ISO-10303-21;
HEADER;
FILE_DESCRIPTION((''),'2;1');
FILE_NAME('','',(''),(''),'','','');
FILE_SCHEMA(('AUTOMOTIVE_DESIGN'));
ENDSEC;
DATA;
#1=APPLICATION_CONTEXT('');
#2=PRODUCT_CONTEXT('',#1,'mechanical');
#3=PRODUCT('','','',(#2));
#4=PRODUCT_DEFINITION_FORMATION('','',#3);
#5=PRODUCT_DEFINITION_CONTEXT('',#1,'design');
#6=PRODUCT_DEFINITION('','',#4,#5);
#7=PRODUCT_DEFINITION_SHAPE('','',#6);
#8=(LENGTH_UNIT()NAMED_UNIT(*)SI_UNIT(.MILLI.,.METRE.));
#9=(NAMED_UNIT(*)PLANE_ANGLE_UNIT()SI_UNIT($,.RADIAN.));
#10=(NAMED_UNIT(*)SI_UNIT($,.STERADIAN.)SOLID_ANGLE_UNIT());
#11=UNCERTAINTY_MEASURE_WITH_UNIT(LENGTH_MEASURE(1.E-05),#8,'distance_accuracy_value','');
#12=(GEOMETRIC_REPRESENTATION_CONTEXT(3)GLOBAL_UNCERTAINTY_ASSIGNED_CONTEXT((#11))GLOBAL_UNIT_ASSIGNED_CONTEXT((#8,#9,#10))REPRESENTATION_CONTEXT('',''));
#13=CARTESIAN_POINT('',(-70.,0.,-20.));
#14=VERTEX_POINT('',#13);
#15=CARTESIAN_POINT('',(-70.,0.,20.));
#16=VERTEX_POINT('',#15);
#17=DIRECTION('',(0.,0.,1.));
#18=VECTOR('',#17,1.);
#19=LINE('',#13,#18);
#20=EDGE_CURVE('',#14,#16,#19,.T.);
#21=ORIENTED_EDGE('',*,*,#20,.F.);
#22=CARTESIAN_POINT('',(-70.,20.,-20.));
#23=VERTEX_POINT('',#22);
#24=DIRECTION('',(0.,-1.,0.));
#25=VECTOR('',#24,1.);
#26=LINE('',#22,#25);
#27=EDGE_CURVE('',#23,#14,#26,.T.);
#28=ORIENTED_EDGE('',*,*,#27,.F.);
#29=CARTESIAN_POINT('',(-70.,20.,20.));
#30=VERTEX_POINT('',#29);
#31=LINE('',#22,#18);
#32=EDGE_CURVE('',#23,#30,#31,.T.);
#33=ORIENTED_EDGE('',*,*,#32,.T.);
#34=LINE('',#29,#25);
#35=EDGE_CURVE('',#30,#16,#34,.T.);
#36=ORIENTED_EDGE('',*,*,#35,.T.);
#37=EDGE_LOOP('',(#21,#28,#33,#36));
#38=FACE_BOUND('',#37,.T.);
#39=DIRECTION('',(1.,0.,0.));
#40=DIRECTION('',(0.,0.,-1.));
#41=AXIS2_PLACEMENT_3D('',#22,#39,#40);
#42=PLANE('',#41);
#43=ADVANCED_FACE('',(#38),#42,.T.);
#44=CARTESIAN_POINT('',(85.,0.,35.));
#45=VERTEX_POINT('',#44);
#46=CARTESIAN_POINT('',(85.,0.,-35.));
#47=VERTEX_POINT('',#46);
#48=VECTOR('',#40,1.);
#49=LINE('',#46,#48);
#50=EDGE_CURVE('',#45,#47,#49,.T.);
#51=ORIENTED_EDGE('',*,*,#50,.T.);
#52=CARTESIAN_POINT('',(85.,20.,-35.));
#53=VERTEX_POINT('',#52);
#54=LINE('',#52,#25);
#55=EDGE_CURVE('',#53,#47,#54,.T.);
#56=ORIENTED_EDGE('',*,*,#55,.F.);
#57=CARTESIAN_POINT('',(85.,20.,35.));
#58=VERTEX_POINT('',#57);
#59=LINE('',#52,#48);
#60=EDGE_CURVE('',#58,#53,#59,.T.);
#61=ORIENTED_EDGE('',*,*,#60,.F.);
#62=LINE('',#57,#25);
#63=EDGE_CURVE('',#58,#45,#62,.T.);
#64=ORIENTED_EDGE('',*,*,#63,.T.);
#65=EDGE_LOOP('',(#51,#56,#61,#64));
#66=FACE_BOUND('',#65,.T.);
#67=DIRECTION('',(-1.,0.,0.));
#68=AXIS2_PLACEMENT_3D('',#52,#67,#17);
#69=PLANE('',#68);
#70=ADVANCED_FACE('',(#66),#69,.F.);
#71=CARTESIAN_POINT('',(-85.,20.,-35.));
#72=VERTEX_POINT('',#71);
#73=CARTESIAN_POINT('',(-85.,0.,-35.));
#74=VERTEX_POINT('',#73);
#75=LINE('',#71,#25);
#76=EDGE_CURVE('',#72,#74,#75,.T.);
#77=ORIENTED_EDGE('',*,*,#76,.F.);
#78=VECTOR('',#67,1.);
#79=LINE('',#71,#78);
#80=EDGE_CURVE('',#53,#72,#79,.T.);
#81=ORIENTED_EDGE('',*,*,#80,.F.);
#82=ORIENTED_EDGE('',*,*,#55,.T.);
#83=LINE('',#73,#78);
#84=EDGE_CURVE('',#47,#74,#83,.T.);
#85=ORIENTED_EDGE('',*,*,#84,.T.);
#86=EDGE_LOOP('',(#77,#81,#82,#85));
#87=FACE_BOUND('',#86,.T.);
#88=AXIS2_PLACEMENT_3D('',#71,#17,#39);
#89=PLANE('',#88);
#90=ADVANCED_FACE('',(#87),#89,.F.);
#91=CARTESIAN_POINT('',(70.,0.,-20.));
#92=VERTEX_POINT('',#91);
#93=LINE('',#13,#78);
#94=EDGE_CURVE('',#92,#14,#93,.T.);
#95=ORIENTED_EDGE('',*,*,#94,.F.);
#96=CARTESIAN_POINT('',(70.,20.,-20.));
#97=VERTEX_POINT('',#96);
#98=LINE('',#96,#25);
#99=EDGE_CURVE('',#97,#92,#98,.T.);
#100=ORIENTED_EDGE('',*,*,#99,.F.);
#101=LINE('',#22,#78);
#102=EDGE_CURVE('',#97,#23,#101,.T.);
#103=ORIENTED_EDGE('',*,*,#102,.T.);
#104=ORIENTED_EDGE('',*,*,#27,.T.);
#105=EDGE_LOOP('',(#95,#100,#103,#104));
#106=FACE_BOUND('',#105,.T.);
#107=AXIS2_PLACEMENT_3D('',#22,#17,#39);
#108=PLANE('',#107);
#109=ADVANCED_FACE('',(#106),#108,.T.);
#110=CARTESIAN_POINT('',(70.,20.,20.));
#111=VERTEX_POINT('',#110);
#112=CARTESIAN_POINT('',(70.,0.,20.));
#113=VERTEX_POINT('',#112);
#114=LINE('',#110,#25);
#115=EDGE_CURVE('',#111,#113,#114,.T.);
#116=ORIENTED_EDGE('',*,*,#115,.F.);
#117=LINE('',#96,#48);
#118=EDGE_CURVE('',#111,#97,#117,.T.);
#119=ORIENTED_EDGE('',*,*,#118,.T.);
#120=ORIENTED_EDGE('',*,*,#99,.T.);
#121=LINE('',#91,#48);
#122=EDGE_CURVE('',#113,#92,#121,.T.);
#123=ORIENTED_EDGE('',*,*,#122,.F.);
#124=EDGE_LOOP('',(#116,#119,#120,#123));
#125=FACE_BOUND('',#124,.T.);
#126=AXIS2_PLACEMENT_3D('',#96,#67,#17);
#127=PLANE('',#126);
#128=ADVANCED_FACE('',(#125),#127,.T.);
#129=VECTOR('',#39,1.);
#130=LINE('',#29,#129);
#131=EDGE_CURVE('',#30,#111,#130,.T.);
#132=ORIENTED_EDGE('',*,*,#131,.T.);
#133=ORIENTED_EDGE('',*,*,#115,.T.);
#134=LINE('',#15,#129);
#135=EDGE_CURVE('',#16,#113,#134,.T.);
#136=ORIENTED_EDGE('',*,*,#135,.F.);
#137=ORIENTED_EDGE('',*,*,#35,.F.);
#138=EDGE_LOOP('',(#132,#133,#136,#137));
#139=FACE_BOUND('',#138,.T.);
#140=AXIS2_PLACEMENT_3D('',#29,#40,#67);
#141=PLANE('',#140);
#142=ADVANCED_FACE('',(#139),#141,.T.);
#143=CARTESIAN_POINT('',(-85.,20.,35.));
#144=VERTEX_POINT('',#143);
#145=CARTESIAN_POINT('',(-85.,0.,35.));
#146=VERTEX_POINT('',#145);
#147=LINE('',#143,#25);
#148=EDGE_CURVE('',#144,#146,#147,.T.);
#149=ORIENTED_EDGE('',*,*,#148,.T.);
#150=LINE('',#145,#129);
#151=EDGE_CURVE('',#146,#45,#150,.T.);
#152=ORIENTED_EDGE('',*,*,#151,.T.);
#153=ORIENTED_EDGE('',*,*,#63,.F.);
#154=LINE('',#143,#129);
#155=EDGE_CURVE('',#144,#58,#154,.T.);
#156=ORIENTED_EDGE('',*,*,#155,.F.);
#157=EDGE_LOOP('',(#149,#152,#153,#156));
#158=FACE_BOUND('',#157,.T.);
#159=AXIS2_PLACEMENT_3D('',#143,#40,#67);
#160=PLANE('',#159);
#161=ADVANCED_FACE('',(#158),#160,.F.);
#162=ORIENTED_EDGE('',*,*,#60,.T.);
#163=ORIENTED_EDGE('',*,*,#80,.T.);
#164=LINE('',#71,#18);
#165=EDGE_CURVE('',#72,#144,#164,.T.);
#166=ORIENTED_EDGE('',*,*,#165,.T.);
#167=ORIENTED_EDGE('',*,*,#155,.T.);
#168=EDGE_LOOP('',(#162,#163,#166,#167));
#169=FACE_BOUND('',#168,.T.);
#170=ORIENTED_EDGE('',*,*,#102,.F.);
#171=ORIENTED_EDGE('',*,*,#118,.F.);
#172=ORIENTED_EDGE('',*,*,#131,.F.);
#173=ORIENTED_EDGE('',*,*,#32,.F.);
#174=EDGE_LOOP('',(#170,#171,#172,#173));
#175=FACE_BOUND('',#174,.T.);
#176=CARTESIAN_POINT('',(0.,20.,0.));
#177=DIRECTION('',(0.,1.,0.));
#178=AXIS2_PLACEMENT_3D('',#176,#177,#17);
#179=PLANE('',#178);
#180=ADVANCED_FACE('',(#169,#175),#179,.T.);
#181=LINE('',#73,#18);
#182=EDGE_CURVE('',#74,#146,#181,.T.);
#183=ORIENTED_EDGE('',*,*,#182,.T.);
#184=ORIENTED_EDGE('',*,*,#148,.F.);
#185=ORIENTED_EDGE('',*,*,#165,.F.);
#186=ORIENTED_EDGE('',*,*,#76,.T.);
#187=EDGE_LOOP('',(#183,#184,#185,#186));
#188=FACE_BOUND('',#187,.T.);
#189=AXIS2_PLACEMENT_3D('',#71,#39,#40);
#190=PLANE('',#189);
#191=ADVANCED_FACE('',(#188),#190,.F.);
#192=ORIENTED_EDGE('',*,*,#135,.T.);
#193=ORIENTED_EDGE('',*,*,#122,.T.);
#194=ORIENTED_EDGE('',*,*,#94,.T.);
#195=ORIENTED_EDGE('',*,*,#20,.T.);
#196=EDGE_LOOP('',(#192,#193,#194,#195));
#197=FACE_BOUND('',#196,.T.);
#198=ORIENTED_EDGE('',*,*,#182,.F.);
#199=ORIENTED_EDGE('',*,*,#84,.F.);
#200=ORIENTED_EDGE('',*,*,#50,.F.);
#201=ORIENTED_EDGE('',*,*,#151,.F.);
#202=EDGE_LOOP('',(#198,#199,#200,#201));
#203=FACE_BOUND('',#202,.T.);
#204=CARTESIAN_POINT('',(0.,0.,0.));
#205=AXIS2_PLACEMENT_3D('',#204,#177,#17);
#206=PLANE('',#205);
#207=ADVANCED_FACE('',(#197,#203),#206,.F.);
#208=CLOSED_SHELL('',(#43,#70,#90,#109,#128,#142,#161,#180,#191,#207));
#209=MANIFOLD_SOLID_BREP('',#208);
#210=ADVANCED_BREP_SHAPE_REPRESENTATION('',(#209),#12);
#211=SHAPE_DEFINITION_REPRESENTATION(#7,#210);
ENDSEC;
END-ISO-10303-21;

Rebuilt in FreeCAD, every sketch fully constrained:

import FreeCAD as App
import Part
import Sketcher

V = App.Vector

doc = App.newDocument("Part")
body = doc.addObject("PartDesign::Body", "Body")

sketch1 = doc.addObject("Sketcher::SketchObject", "Sketch")
body.addObject(sketch1)
sketch1.AttachmentSupport = (doc.XZ_Plane, [""])
sketch1.MapMode = "FlatFace"
sketch1.addGeometry([
    Part.LineSegment(V(-85, -35, 0), V(-85, 35, 0)),
    Part.LineSegment(V(-85, 35, 0), V(85, 35, 0)),
    Part.LineSegment(V(85, 35, 0), V(85, -35, 0)),
    Part.LineSegment(V(85, -35, 0), V(-85, -35, 0)),
    Part.LineSegment(V(70, 20, 0), V(-70, 20, 0)),
    Part.LineSegment(V(-70, 20, 0), V(-70, -20, 0)),
    Part.LineSegment(V(-70, -20, 0), V(70, -20, 0)),
    Part.LineSegment(V(70, -20, 0), V(70, 20, 0)),
], False)
sketch1.addConstraint([
    Sketcher.Constraint("Coincident", 0, 2, 1, 1),
    Sketcher.Constraint("Coincident", 1, 2, 2, 1),
    Sketcher.Constraint("Coincident", 2, 2, 3, 1),
    Sketcher.Constraint("Coincident", 3, 2, 0, 1),
    Sketcher.Constraint("Coincident", 4, 2, 5, 1),
    Sketcher.Constraint("Coincident", 5, 2, 6, 1),
    Sketcher.Constraint("Coincident", 6, 2, 7, 1),
    Sketcher.Constraint("Coincident", 7, 2, 4, 1),
    Sketcher.Constraint("Vertical", 0),
    Sketcher.Constraint("Horizontal", 1),
    Sketcher.Constraint("Vertical", 2),
    Sketcher.Constraint("Horizontal", 3),
    Sketcher.Constraint("Horizontal", 4),
    Sketcher.Constraint("Vertical", 5),
    Sketcher.Constraint("Horizontal", 6),
    Sketcher.Constraint("Vertical", 7),
    Sketcher.Constraint("Symmetric", 0, 2, 2, 2, -1, 1),
    Sketcher.Constraint("Symmetric", 4, 2, 6, 2, -1, 1),
    Sketcher.Constraint("DistanceX", 1, 1, 1, 2, 170.0),
    Sketcher.Constraint("DistanceX", 4, 2, 4, 1, 140.0),
    Sketcher.Constraint("DistanceY", 0, 1, 0, 2, 70.0),
    Sketcher.Constraint("DistanceY", 5, 2, 5, 1, 40.0),
])
pad1 = doc.addObject("PartDesign::Pad", "Pad")
body.addObject(pad1)
pad1.Profile = sketch1
pad1.Length = 20
pad1.Reversed = True

doc.recompute()
